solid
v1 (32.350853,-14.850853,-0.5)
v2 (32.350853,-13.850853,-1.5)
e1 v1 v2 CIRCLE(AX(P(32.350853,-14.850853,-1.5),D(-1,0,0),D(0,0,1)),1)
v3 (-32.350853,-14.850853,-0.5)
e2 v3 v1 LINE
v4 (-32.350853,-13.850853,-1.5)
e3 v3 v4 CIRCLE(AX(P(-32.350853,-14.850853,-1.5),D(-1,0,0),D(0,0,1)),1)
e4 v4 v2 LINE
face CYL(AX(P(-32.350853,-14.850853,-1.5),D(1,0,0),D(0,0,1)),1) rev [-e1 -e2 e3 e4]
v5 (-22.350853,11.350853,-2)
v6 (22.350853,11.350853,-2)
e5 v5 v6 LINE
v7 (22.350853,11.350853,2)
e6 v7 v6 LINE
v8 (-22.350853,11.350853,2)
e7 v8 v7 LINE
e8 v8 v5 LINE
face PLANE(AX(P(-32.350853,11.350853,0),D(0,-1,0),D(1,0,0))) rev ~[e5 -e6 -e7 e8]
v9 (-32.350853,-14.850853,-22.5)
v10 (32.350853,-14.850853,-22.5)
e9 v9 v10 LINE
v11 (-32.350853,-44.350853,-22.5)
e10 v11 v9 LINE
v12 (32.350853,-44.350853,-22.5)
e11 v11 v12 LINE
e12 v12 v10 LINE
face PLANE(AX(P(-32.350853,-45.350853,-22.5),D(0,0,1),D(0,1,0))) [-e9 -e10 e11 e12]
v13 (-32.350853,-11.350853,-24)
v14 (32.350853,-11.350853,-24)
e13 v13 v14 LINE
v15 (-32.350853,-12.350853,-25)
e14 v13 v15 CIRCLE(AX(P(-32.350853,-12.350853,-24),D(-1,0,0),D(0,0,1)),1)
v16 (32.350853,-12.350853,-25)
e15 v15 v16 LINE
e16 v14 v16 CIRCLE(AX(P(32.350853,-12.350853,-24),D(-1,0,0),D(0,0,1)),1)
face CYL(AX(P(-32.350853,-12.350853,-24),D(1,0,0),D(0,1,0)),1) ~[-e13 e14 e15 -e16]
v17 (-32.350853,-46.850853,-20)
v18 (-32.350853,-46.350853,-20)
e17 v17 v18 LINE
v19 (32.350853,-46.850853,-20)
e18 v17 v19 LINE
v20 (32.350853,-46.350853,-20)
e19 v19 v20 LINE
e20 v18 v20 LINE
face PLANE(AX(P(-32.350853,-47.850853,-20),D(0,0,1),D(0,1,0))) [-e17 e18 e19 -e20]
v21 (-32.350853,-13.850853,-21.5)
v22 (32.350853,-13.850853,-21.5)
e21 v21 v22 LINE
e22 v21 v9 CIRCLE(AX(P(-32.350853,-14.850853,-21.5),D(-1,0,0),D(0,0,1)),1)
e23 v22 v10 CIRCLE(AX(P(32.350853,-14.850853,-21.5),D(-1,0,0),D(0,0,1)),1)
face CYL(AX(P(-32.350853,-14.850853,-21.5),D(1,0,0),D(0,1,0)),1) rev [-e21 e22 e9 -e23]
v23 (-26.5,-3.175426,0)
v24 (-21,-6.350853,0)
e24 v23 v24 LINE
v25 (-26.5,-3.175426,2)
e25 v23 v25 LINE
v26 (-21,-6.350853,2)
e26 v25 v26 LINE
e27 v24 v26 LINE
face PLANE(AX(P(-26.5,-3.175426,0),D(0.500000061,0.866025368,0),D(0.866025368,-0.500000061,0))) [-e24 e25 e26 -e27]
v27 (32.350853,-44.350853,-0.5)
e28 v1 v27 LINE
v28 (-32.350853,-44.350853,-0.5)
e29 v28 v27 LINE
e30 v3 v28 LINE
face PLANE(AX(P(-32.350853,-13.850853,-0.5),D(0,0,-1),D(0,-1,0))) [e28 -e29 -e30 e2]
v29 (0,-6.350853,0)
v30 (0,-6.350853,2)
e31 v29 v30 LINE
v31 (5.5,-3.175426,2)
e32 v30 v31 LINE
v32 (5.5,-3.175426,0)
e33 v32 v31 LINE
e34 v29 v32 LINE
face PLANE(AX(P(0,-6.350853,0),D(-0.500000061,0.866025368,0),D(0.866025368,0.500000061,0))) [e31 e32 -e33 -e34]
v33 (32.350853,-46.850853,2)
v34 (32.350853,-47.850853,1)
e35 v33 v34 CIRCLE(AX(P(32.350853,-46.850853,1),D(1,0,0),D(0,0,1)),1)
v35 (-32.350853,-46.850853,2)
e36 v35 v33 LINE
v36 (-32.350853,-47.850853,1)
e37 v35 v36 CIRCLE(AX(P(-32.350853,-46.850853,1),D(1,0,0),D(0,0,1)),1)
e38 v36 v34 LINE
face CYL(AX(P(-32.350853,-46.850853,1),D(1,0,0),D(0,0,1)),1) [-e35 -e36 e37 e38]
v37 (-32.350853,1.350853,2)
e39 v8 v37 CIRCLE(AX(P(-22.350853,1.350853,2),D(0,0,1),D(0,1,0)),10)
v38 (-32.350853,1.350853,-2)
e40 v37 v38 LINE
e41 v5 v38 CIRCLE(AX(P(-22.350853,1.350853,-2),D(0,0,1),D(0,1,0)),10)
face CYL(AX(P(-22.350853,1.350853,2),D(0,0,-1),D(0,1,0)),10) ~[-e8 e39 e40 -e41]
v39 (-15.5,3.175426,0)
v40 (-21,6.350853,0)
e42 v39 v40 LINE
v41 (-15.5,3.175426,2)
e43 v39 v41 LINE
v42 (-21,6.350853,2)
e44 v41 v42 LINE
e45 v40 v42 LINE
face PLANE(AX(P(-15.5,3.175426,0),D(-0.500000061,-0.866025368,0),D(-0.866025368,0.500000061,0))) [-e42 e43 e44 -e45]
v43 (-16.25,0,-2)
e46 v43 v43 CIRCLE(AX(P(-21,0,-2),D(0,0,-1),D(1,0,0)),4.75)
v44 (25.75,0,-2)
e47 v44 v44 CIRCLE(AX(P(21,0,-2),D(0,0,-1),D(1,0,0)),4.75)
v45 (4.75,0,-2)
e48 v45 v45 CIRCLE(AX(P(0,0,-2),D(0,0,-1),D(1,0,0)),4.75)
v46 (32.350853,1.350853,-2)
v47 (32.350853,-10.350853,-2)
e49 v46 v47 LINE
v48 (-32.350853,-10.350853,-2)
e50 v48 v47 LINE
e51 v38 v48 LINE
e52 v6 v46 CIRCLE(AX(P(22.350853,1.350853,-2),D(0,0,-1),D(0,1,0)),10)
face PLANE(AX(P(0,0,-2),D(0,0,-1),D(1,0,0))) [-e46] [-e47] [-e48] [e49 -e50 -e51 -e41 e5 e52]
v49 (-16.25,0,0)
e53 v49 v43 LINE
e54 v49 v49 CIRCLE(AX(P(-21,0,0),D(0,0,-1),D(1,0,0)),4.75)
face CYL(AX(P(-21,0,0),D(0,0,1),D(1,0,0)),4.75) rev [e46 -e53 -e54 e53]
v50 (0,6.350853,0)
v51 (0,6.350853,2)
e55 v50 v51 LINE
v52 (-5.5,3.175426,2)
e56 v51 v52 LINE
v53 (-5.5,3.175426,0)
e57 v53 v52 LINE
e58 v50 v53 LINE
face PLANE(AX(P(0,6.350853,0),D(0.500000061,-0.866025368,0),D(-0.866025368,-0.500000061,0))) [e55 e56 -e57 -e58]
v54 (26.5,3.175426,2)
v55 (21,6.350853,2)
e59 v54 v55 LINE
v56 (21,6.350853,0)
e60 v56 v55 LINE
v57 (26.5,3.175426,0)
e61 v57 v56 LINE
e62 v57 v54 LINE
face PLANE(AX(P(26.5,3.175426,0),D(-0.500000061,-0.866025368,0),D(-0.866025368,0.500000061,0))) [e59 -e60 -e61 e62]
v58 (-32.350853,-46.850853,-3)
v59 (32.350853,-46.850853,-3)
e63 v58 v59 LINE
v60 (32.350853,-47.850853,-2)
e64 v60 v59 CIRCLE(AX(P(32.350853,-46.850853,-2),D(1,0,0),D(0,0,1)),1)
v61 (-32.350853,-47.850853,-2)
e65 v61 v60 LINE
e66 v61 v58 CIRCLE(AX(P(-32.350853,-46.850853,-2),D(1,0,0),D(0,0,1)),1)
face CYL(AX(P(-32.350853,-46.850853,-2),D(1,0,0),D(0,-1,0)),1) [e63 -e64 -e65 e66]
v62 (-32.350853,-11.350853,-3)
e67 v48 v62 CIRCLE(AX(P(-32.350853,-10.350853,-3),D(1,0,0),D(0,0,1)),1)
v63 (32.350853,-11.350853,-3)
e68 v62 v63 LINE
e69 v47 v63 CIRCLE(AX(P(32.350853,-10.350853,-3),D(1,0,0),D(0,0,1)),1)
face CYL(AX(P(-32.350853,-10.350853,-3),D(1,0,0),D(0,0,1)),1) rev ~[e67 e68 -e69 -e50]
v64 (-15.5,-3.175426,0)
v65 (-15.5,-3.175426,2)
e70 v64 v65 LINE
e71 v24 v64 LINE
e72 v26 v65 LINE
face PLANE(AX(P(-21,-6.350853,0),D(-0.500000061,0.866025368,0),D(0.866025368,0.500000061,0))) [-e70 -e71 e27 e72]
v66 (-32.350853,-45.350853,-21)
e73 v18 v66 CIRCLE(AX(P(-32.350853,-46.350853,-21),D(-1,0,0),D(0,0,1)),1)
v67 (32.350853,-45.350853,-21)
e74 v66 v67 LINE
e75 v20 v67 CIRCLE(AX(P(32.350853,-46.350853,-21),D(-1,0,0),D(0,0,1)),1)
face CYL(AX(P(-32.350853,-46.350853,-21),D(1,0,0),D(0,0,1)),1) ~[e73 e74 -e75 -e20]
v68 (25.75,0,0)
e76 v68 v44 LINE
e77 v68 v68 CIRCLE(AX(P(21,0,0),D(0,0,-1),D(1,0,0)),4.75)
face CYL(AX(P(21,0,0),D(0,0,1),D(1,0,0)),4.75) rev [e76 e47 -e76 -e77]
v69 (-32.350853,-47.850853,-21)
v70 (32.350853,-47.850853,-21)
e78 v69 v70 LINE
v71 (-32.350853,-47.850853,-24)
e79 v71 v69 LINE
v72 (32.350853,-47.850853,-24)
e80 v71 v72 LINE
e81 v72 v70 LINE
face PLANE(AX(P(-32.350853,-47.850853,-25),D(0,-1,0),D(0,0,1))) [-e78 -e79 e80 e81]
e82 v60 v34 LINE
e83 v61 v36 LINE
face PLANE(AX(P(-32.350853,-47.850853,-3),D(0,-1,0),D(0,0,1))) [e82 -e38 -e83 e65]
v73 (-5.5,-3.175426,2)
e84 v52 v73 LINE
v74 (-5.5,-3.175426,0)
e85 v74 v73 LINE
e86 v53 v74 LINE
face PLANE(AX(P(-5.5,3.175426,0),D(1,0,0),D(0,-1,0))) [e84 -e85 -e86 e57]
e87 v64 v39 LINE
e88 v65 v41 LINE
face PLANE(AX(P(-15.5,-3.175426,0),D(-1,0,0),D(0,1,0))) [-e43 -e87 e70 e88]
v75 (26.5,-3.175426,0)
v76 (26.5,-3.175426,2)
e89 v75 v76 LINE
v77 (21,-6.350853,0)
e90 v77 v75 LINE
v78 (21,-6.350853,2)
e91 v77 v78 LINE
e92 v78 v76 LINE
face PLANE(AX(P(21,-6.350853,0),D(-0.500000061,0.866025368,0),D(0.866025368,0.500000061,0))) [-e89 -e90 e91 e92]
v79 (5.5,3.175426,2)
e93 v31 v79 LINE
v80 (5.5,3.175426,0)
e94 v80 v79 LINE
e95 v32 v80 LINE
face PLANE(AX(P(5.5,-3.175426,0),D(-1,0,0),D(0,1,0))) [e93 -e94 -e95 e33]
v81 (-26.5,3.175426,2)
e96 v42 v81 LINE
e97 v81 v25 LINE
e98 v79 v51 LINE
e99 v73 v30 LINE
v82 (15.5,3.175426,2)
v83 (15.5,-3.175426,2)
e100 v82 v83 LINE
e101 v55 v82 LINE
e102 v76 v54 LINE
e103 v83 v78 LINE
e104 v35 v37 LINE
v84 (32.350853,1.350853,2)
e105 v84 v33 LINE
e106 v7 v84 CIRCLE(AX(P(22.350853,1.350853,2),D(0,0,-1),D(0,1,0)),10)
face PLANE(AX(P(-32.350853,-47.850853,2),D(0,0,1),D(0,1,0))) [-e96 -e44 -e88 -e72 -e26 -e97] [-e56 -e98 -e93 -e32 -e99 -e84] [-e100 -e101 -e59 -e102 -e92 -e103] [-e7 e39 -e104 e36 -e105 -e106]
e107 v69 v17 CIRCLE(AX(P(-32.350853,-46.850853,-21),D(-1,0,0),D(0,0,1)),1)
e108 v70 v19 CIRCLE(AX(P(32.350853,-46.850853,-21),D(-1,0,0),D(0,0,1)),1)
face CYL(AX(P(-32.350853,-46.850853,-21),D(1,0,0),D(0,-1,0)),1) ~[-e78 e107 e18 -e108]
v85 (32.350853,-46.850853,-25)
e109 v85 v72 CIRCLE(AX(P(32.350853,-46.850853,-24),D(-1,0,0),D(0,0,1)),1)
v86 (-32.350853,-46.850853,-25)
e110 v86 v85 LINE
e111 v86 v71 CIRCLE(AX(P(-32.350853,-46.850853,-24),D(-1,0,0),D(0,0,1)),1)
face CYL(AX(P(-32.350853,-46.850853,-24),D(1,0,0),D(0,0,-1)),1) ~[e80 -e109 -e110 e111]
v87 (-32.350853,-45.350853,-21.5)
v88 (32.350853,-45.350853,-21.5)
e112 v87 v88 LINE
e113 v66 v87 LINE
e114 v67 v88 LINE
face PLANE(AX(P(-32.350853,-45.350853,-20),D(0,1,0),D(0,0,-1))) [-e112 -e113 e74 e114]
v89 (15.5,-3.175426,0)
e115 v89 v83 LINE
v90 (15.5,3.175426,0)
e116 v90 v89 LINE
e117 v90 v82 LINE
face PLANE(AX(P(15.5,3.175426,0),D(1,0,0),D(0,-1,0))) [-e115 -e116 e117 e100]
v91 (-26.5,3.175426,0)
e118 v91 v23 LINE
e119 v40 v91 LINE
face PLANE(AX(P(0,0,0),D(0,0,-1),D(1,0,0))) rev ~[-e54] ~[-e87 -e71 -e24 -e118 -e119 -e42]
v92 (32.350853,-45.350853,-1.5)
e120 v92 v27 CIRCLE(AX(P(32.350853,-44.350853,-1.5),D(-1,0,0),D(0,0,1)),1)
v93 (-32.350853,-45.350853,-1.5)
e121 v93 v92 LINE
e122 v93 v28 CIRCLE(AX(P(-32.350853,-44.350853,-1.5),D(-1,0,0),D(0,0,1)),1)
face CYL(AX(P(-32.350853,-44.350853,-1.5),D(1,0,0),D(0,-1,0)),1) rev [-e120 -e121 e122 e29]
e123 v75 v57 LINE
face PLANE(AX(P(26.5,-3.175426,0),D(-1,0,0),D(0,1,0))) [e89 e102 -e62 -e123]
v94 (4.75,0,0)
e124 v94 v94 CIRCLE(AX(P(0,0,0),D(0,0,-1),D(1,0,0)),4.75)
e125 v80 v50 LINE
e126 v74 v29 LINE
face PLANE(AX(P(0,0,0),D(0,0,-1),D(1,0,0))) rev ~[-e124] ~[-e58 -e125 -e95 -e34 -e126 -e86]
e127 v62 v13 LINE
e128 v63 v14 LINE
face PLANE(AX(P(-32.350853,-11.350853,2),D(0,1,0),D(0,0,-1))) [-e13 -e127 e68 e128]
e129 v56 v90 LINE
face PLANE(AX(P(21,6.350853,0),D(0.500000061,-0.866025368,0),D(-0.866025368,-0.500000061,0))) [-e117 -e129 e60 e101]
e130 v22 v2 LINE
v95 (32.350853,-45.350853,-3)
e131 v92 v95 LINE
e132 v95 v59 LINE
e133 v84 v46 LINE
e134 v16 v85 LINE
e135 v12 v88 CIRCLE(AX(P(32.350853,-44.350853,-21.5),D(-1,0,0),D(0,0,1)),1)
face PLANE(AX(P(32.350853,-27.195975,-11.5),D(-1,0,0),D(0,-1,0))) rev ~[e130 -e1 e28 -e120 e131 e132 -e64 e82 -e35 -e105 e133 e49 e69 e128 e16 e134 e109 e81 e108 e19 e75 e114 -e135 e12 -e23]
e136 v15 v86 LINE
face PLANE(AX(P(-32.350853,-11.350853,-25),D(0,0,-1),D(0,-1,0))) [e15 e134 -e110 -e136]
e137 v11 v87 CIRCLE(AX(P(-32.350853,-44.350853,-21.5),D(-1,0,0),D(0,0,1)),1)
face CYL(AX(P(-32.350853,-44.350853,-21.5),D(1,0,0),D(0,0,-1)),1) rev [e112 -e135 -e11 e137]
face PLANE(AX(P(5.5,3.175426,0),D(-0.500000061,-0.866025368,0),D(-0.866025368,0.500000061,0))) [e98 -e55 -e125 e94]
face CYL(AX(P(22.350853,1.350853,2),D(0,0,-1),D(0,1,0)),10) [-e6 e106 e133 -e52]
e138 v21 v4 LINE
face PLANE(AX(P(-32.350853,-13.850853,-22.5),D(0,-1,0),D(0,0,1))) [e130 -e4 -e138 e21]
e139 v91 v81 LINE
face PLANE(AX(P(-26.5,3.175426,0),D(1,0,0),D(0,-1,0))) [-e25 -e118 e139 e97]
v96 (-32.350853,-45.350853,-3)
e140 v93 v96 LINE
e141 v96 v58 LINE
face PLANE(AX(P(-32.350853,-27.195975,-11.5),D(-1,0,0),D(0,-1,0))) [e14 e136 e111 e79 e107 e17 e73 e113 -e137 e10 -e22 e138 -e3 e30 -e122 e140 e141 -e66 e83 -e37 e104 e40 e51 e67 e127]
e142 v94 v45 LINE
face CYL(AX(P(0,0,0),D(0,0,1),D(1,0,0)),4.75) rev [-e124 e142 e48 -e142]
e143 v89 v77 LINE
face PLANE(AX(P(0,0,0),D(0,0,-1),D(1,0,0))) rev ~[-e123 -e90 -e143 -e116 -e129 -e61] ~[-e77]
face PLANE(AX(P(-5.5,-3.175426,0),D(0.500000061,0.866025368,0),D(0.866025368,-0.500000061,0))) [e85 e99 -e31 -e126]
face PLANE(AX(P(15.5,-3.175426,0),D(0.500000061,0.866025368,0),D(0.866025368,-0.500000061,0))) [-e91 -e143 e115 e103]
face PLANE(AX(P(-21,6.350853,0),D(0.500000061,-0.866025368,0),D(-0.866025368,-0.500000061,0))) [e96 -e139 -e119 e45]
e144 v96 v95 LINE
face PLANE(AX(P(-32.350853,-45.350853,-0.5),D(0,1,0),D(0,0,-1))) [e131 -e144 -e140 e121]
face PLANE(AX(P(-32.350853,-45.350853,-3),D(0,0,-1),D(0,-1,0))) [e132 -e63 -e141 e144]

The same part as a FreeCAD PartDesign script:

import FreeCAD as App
import Part
import Sketcher

V = App.Vector
Q = App.Units.Quantity


def edges_at(feature, points):
    """Names of the edges that pass closest to the given points."""
    edges = feature.Shape.Edges
    near = lambda p: min(range(len(edges)), key=lambda i: edges[i].distToShape(Part.Vertex(*p))[0])
    return sorted({f"Edge{near(p) + 1}" for p in points})


def add_polygon(sketch, points):
    """Adds a closed chain of lines whose ends are joined by coincident constraints."""
    first, n = sketch.GeometryCount, len(points)
    for a, b in zip(points, points[1:] + points[:1]):
        sketch.addGeometry(Part.LineSegment(App.Vector(*a, 0), App.Vector(*b, 0)), False)
    for i in range(n):
        sketch.addConstraint(Sketcher.Constraint("Coincident", first + i, 2, first + (i + 1) % n, 1))

doc = App.newDocument("Part")
body = doc.addObject("PartDesign::Body", "Body")

# Sketch on XY plane
sketch1 = doc.addObject("Sketcher::SketchObject", "Sketch")
body.addObject(sketch1)
sketch1.AttachmentSupport = (doc.XY_Plane, [""])
sketch1.MapMode = "FlatFace"
add_polygon(sketch1, [(-32.350853, 11.350853), (-32.350853, -11.350853), (32.350853, -11.350853), (32.350853, 11.350853)])  # lines 0-3
add_polygon(sketch1, [(-26.5, 3.175426), (-21, 6.350853), (-15.5, 3.175426), (-15.5, -3.175426), (-21, -6.350853), (-26.5, -3.175426)])  # lines 4-9
add_polygon(sketch1, [(-5.5, 3.175426), (0, 6.350853), (5.5, 3.175426), (5.5, -3.175426), (0, -6.350853), (-5.5, -3.175426)])  # lines 10-15
add_polygon(sketch1, [(15.5, 3.175426), (21, 6.350853), (26.5, 3.175426), (26.5, -3.175426), (21, -6.350853), (15.5, -3.175426)])  # lines 16-21
sketch1.addConstraint([
    Sketcher.Constraint("Vertical", 0),
    Sketcher.Constraint("Horizontal", 1),
    Sketcher.Constraint("Vertical", 2),
    Sketcher.Constraint("Horizontal", 3),
    Sketcher.Constraint("Vertical", 6),
    Sketcher.Constraint("Vertical", 9),
    Sketcher.Constraint("Vertical", 12),
    Sketcher.Constraint("Vertical", 15),
    Sketcher.Constraint("Vertical", 18),
    Sketcher.Constraint("Vertical", 21),
    Sketcher.Constraint("Symmetric", 0, 2, 2, 2, -1, 1),
    Sketcher.Constraint("Symmetric", 10, 2, 13, 2, -1, 1),
    Sketcher.Constraint("Symmetric", 11, 2, 14, 2, -1, 1),
    Sketcher.Constraint("Symmetric", 7, 2, 16, 2, -1, 1),
    Sketcher.Constraint("Symmetric", 8, 2, 17, 2, -1, 1),
    Sketcher.Constraint("Symmetric", 4, 2, 19, 2, -1, 1),
    Sketcher.Constraint("Symmetric", 5, 2, 20, 2, -1, 1),
    Sketcher.Constraint("Symmetric", 4, 2, 16, 2, -2),
    Sketcher.Constraint("PointOnObject", 10, 2, -2),
    Sketcher.Constraint("Parallel", 4, 7),
    Sketcher.Constraint("Parallel", 5, 8),
    Sketcher.Constraint("Parallel", 7, 10),
    Sketcher.Constraint("Parallel", 8, 11),
    Sketcher.Constraint("Parallel", 10, 13),
    Sketcher.Constraint("Parallel", 13, 16),
    Sketcher.Constraint("Parallel", 16, 19),
    Sketcher.Constraint("Horizontal", 6, 2, 8, 2),
    Sketcher.Constraint("Horizontal", 5, 2, 9, 2),
    Sketcher.Constraint("Horizontal", 4, 2, 10, 2),
    Sketcher.Constraint("Horizontal", 9, 2, 11, 2),
    Sketcher.Constraint("Angle", 4, Q("30.000004 deg")),
    Sketcher.Constraint("DistanceX", 4, 2, -1, 1, Q("21 mm")),
    Sketcher.Constraint("DistanceY", 4, 2, 3, 2, Q("5 mm")),
    Sketcher.Constraint("DistanceX", 8, 2, 6, 2, Q("11 mm")),
    Sketcher.Constraint("DistanceY", 6, 2, 6, 1, Q("6.350852 mm")),
    Sketcher.Constraint("DistanceX", 1, 1, 1, 2, Q("64.701706 mm")),
])
pad1 = doc.addObject("PartDesign::Pad", "Pad")
body.addObject(pad1)
pad1.Profile = sketch1
pad1.Length = 2

# Sketch on XY plane
sketch2 = doc.addObject("Sketcher::SketchObject", "Sketch001")
body.addObject(sketch2)
sketch2.AttachmentSupport = (doc.XY_Plane, [""])
sketch2.MapMode = "FlatFace"
add_polygon(sketch2, [(-32.350853, -11.350853), (-32.350853, 11.350853), (32.350853, 11.350853), (32.350853, -11.350853)])  # lines 0-3
sketch2.addGeometry(Part.Circle(V(-21, 0, 0), V(0, 0, 1), 4.75), False)  # 4
sketch2.addGeometry(Part.Circle(V(0, 0, 0), V(0, 0, 1), 4.75), False)  # 5
sketch2.addGeometry(Part.Circle(V(21, 0, 0), V(0, 0, 1), 4.75), False)  # 6
sketch2.addConstraint([
    Sketcher.Constraint("Vertical", 0),
    Sketcher.Constraint("Horizontal", 1),
    Sketcher.Constraint("Vertical", 2),
    Sketcher.Constraint("Horizontal", 3),
    Sketcher.Constraint("Coincident", 5, 3, -1, 1),
    Sketcher.Constraint("Equal", 4, 5),
    Sketcher.Constraint("Equal", 5, 6),
    Sketcher.Constraint("Symmetric", 4, 3, 6, 3, -1, 1),
    Sketcher.Constraint("Symmetric", 0, 2, 2, 2, -1, 1),
    Sketcher.Constraint("PointOnObject", 4, 3, -1),
    Sketcher.Constraint("Diameter", 4, Q("9.5 mm")),
    Sketcher.Constraint("DistanceX", 4, 3, -1, 1, Q("21 mm")),
    Sketcher.Constraint("DistanceX", 1, 1, 1, 2, Q("64.701706 mm")),
    Sketcher.Constraint("DistanceY", 0, 1, 0, 2, Q("22.701706 mm")),
])
pad2 = doc.addObject("PartDesign::Pad", "Pad001")
body.addObject(pad2)
pad2.Profile = sketch2
pad2.Length = 2
pad2.Reversed = True

# Sketch on YZ plane
sketch3 = doc.addObject("Sketcher::SketchObject", "Sketch002")
body.addObject(sketch3)
sketch3.AttachmentSupport = (doc.YZ_Plane, [""])
sketch3.MapMode = "FlatFace"
sketch3.AttachmentOffset = App.Placement(V(0, 0, -32.350853), App.Rotation())
add_polygon(sketch3, [(-11.350853, 2), (-11.350853, -25), (-47.850853, -25), (-47.850853, -20), (-45.350853, -20), (-45.350853, -22.5), (-13.850853, -22.5), (-13.850853, -0.5), (-45.350853, -0.5), (-45.350853, -3), (-47.850853, -3), (-47.850853, 2)])  # lines 0-11
sketch3.addConstraint([
    Sketcher.Constraint("Vertical", 0),
    Sketcher.Constraint("Horizontal", 1),
    Sketcher.Constraint("Vertical", 2),
    Sketcher.Constraint("Horizontal", 3),
    Sketcher.Constraint("Vertical", 4),
    Sketcher.Constraint("Horizontal", 5),
    Sketcher.Constraint("Vertical", 6),
    Sketcher.Constraint("Horizontal", 7),
    Sketcher.Constraint("Vertical", 8),
    Sketcher.Constraint("Horizontal", 9),
    Sketcher.Constraint("Vertical", 10),
    Sketcher.Constraint("Horizontal", 11),
    Sketcher.Constraint("Vertical", 4, 2, 7, 2),
    Sketcher.Constraint("Vertical", 2, 2, 9, 2),
    Sketcher.Constraint("Equal", 9, 4),
    Sketcher.Constraint("Equal", 4, 8),
    Sketcher.Constraint("Equal", 2, 10),
    Sketcher.Constraint("DistanceY", 0, 2, 0, 1, Q("27 mm")),
    Sketcher.Constraint("DistanceY", 2, 1, 2, 2, Q("5 mm")),
    Sketcher.Constraint("DistanceY", 6, 1, 6, 2, Q("22 mm")),
    Sketcher.Constraint("DistanceX", 1, 2, 1, 1, Q("36.5 mm")),
    Sketcher.Constraint("DistanceX", 5, 1, 5, 2, Q("31.5 mm")),
    Sketcher.Constraint("DistanceY", 0, 2, -1, 1, Q("25 mm")),
    Sketcher.Constraint("DistanceX", 0, 2, -1, 1, Q("11.350853 mm")),
])
pad3 = doc.addObject("PartDesign::Pad", "Pad002")
body.addObject(pad3)
pad3.Profile = sketch3
pad3.Length = 64.701706
doc.recompute()

fillet = doc.addObject("PartDesign::Fillet", "Fillet")
body.addObject(fillet)
fillet.Base = (pad3, edges_at(pad3, [(32.351, 11.351, 0), (-32.351, 11.351, 0)]))
fillet.Radius = 10
doc.recompute()

fillet2 = doc.addObject("PartDesign::Fillet", "Fillet001")
body.addObject(fillet2)
fillet2.Base = (fillet, edges_at(fillet, [
    (0, -47.851, 2),
    (0, -47.851, -3),
    (0, -45.351, -20),
    (0, -47.851, -20),
    (0, -47.851, -25),
    (0, -13.851, -22.5),
    (0, -13.851, -0.5),
    (0, -45.351, -0.5),
    (0, -45.351, -22.5),
    (0, -11.351, -25),
    (0, -11.351, -2),
]))
fillet2.Radius = 1

doc.recompute()
